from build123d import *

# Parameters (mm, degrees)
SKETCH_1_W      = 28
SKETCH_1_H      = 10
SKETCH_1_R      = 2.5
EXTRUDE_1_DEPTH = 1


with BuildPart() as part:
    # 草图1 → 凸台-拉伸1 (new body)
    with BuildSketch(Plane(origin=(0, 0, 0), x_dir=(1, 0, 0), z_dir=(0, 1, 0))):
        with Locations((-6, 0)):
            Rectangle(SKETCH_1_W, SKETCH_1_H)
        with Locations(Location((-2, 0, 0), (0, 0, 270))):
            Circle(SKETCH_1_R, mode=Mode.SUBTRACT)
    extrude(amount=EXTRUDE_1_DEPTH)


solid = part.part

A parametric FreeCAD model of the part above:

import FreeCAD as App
import Part
import Sketcher
from FreeCAD import Vector
Q = App.Units.Quantity


def add_polygon(sketch, points):
    """Adds a closed chain of lines whose ends are joined by coincident constraints."""
    first, n = sketch.GeometryCount, len(points)
    for a, b in zip(points, points[1:] + points[:1]):
        sketch.addGeometry(Part.LineSegment(App.Vector(*a, 0), App.Vector(*b, 0)), False)
    for i in range(n):
        sketch.addConstraint(Sketcher.Constraint("Coincident", first + i, 2, first + (i + 1) % n, 1))

doc = App.newDocument("Part")
body = doc.addObject("PartDesign::Body", "Body")

# Sketch on XZ plane
sketch1 = doc.addObject("Sketcher::SketchObject", "Sketch")
body.addObject(sketch1)
sketch1.AttachmentSupport = (doc.XZ_Plane, [""])
sketch1.MapMode = "FlatFace"
add_polygon(sketch1, [(-20, -5), (-20, 5), (8, 5), (8, -5)])  # lines 0-3
sketch1.addGeometry(Part.Circle(Vector(-2, 0, 0), Vector(0, 0, 1), 2.5), False)  # 4
sketch1.addConstraint(Sketcher.Constraint("Vertical", 0))
sketch1.addConstraint(Sketcher.Constraint("Horizontal", 1))
sketch1.addConstraint(Sketcher.Constraint("Vertical", 2))
sketch1.addConstraint(Sketcher.Constraint("Horizontal", 3))
sketch1.addConstraint(Sketcher.Constraint("PointOnObject", 4, 3, -1))
sketch1.addConstraint(Sketcher.Constraint("Diameter", 4, Q("5 mm")))
sketch1.addConstraint(Sketcher.Constraint("DistanceX", 1, 1, 1, 2, Q("28 mm")))
sketch1.addConstraint(Sketcher.Constraint("DistanceY", 0, 1, 0, 2, Q("10 mm")))
sketch1.addConstraint(Sketcher.Constraint("DistanceX", 4, 3, -1, 1, Q("2 mm")))
sketch1.addConstraint(Sketcher.Constraint("DistanceX", 0, 2, -1, 1, Q("20 mm")))
sketch1.addConstraint(Sketcher.Constraint("DistanceY", -1, 1, 0, 2, Q("5 mm")))
pad1 = doc.addObject("PartDesign::Pad", "Pad")
body.addObject(pad1)
pad1.Profile = sketch1
pad1.Length = 1
pad1.Reversed = True

doc.recompute()
